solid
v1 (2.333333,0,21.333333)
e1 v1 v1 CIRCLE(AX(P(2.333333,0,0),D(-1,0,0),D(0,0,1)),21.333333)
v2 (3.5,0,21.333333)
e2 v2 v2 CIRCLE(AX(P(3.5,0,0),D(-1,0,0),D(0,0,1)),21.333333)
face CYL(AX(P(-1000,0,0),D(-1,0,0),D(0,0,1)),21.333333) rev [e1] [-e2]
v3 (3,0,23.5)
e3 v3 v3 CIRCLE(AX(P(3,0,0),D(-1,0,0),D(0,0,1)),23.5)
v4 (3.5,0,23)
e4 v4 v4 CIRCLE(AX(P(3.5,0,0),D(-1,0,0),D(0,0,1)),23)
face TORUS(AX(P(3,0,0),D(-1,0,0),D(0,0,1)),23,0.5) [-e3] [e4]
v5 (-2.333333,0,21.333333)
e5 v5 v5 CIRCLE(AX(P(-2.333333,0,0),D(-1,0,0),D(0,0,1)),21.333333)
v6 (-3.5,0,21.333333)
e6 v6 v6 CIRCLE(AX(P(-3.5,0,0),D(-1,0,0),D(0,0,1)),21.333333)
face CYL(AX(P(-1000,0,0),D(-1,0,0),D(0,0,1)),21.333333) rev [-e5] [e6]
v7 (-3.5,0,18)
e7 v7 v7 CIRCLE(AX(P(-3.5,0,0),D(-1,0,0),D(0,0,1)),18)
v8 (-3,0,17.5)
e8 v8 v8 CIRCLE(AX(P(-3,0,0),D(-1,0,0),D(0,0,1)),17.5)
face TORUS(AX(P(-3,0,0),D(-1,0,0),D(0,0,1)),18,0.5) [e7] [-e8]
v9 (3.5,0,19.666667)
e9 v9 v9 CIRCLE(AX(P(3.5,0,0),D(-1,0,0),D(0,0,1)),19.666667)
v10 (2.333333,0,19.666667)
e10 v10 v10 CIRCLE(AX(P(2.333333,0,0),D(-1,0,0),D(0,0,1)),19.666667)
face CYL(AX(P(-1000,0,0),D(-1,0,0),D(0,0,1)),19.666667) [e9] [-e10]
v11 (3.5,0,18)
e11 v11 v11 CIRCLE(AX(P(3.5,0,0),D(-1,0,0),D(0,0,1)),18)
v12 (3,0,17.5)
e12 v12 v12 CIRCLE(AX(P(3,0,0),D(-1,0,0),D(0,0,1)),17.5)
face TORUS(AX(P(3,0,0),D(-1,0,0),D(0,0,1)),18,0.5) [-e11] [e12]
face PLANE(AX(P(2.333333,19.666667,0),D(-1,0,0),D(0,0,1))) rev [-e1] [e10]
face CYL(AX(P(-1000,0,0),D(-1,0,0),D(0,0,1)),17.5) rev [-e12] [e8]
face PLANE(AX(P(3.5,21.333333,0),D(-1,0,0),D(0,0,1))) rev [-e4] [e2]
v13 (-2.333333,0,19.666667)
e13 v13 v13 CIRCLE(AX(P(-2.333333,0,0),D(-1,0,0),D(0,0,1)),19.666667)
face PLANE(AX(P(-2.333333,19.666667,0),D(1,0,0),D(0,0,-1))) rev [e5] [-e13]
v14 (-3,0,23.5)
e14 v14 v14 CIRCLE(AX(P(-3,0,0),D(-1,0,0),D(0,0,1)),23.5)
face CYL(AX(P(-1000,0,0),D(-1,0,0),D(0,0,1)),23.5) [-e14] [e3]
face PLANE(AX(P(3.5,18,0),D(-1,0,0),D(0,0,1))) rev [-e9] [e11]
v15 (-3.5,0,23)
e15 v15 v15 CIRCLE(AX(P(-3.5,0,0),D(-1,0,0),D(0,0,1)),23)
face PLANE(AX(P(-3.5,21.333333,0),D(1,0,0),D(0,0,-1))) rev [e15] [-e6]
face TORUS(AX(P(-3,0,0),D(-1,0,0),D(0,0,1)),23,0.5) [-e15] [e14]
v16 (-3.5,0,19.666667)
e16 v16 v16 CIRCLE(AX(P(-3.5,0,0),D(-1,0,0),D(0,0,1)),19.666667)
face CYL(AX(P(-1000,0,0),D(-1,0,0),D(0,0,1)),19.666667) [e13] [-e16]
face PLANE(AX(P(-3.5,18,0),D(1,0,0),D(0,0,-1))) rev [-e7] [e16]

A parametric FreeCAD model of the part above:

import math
import FreeCAD as App
import Part
import Sketcher
from FreeCAD import Vector
Q = App.Units.Quantity

doc = App.newDocument("Part")
body = doc.addObject("PartDesign::Body", "Body")

sketch1 = body.newObject("Sketcher::SketchObject", "Sketch")
sketch1.AttachmentSupport = (doc.getObject("XY_Plane"), [""])
sketch1.MapMode = "FlatFace"
sketch1.addGeometry(Part.LineSegment(Vector(-3, 17.5, 0), Vector(3, 17.5, 0)), False)
sketch1.addGeometry(Part.ArcOfCircle(Part.Circle(Vector(3, 18, 0), Vector(0, 0, 1), 0.5), math.radians(-90), math.radians(0)), False)
sketch1.addGeometry(Part.LineSegment(Vector(3.5, 18, 0), Vector(3.5, 19.67, 0)), False)
sketch1.addGeometry(Part.LineSegment(Vector(3.5, 19.67, 0), Vector(2.33, 19.67, 0)), False)
sketch1.addGeometry(Part.LineSegment(Vector(2.33, 19.67, 0), Vector(2.33, 21.33, 0)), False)
sketch1.addGeometry(Part.LineSegment(Vector(2.33, 21.33, 0), Vector(3.5, 21.33, 0)), False)
sketch1.addGeometry(Part.LineSegment(Vector(3.5, 21.33, 0), Vector(3.5, 23, 0)), False)
sketch1.addGeometry(Part.ArcOfCircle(Part.Circle(Vector(3, 23, 0), Vector(0, 0, 1), 0.5), math.radians(0), math.radians(90)), False)
sketch1.addGeometry(Part.LineSegment(Vector(3, 23.5, 0), Vector(-3, 23.5, 0)), False)
sketch1.addGeometry(Part.ArcOfCircle(Part.Circle(Vector(-3, 23, 0), Vector(0, 0, 1), 0.5), math.radians(90), math.radians(180)), False)
sketch1.addGeometry(Part.LineSegment(Vector(-3.5, 23, 0), Vector(-3.5, 21.33, 0)), False)
sketch1.addGeometry(Part.LineSegment(Vector(-3.5, 21.33, 0), Vector(-2.33, 21.33, 0)), False)
sketch1.addGeometry(Part.LineSegment(Vector(-2.33, 21.33, 0), Vector(-2.33, 19.67, 0)), False)
sketch1.addGeometry(Part.LineSegment(Vector(-2.33, 19.67, 0), Vector(-3.5, 19.67, 0)), False)
sketch1.addGeometry(Part.LineSegment(Vector(-3.5, 19.67, 0), Vector(-3.5, 18, 0)), False)
sketch1.addGeometry(Part.ArcOfCircle(Part.Circle(Vector(-3, 18, 0), Vector(0, 0, 1), 0.5), math.radians(180), math.radians(270)), False)
sketch1.addConstraint(Sketcher.Constraint("Tangent", 0, 2, 1, 1))
sketch1.addConstraint(Sketcher.Constraint("Tangent", 1, 2, 2, 1))
sketch1.addConstraint(Sketcher.Constraint("Coincident", 2, 2, 3, 1))
sketch1.addConstraint(Sketcher.Constraint("Coincident", 3, 2, 4, 1))
sketch1.addConstraint(Sketcher.Constraint("Coincident", 4, 2, 5, 1))
sketch1.addConstraint(Sketcher.Constraint("Coincident", 5, 2, 6, 1))
sketch1.addConstraint(Sketcher.Constraint("Tangent", 6, 2, 7, 1))
sketch1.addConstraint(Sketcher.Constraint("Tangent", 7, 2, 8, 1))
sketch1.addConstraint(Sketcher.Constraint("Tangent", 8, 2, 9, 1))
sketch1.addConstraint(Sketcher.Constraint("Tangent", 9, 2, 10, 1))
sketch1.addConstraint(Sketcher.Constraint("Coincident", 10, 2, 11, 1))
sketch1.addConstraint(Sketcher.Constraint("Coincident", 11, 2, 12, 1))
sketch1.addConstraint(Sketcher.Constraint("Coincident", 12, 2, 13, 1))
sketch1.addConstraint(Sketcher.Constraint("Coincident", 13, 2, 14, 1))
sketch1.addConstraint(Sketcher.Constraint("Tangent", 14, 2, 15, 1))
sketch1.addConstraint(Sketcher.Constraint("Tangent", 15, 2, 0, 1))
sketch1.addConstraint(Sketcher.Constraint("Horizontal", 0))
sketch1.addConstraint(Sketcher.Constraint("Vertical", 2))
sketch1.addConstraint(Sketcher.Constraint("Horizontal", 3))
sketch1.addConstraint(Sketcher.Constraint("Vertical", 4))
sketch1.addConstraint(Sketcher.Constraint("Horizontal", 5))
sketch1.addConstraint(Sketcher.Constraint("Vertical", 6))
sketch1.addConstraint(Sketcher.Constraint("Horizontal", 8))
sketch1.addConstraint(Sketcher.Constraint("Vertical", 10))
sketch1.addConstraint(Sketcher.Constraint("Horizontal", 11))
sketch1.addConstraint(Sketcher.Constraint("Vertical", 12))
sketch1.addConstraint(Sketcher.Constraint("Horizontal", 13))
sketch1.addConstraint(Sketcher.Constraint("Vertical", 14))
sketch1.addConstraint(Sketcher.Constraint("Equal", 1, 7))
sketch1.addConstraint(Sketcher.Constraint("Equal", 7, 9))
sketch1.addConstraint(Sketcher.Constraint("Equal", 9, 15))
sketch1.addConstraint(Sketcher.Constraint("Symmetric", 5, 2, 10, 2, -2))
sketch1.addConstraint(Sketcher.Constraint("Symmetric", 3, 2, 12, 2, -2))
sketch1.addConstraint(Sketcher.Constraint("Vertical", 1, 3, 7, 3))
sketch1.addConstraint(Sketcher.Constraint("Vertical", 9, 3, 15, 3))
sketch1.addConstraint(Sketcher.Constraint("Equal", 2, 4))
sketch1.addConstraint(Sketcher.Constraint("Equal", 4, 6))
sketch1.addConstraint(Sketcher.Constraint("Radius", 1, Q("0.5 mm")))
sketch1.addConstraint(Sketcher.Constraint("DistanceX", 0, 1, 0, 2, Q("6 mm")))
sketch1.addConstraint(Sketcher.Constraint("DistanceY", -1, 1, 1, 3, Q("18 mm")))
sketch1.addConstraint(Sketcher.Constraint("DistanceY", -1, 1, 7, 3, Q("23 mm")))
sketch1.addConstraint(Sketcher.Constraint("DistanceX", 3, 2, 3, 1, Q("1.166667 mm")))
revolution = body.newObject("PartDesign::Revolution", "Revolution")
revolution.Profile = sketch1
revolution.ReferenceAxis = (sketch1, ["H_Axis"])
revolution.Angle = 360

doc.recompute()
